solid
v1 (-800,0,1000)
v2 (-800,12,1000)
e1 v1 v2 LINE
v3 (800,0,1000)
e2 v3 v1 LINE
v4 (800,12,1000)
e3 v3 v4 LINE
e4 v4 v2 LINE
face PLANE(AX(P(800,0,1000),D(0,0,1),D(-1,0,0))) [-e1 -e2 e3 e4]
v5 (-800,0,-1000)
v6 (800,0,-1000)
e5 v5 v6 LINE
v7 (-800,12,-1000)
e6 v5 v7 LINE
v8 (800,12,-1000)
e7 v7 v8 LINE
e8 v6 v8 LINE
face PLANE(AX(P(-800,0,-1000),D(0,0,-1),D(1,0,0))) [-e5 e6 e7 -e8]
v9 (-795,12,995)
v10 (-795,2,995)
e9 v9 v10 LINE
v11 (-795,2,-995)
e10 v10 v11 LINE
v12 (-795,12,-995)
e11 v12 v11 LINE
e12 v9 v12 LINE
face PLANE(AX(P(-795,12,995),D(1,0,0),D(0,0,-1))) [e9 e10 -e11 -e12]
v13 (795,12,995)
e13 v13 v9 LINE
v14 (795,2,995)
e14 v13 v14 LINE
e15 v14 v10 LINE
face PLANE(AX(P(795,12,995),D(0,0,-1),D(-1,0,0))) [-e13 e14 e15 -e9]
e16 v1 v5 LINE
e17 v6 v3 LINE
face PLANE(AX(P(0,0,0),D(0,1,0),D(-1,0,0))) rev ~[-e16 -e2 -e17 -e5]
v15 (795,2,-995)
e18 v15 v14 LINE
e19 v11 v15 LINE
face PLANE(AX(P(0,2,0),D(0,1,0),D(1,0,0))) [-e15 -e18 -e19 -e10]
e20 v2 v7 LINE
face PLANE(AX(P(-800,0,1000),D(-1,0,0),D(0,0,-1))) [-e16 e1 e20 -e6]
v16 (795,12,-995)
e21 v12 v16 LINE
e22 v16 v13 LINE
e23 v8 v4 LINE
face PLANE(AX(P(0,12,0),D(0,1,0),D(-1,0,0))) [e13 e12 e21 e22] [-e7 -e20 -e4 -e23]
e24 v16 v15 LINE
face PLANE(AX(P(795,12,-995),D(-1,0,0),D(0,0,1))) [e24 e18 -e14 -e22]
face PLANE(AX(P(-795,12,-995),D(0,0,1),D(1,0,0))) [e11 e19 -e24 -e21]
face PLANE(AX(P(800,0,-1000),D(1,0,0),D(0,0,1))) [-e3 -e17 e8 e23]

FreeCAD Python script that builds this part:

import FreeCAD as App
import Part
import Sketcher
Q = App.Units.Quantity

doc = App.newDocument("Part")
body = doc.addObject("PartDesign::Body", "Body")

sketch1 = doc.addObject("Sketcher::SketchObject", "Sketch")
body.addObject(sketch1)
sketch1.AttachmentSupport = (doc.XZ_Plane, [""])
sketch1.MapMode = "FlatFace"
sketch1.addGeometry([
    Part.LineSegment(App.Vector(-800, 1000, 0), App.Vector(800, 1000, 0)),
    Part.LineSegment(App.Vector(800, 1000, 0), App.Vector(800, -1000, 0)),
    Part.LineSegment(App.Vector(800, -1000, 0), App.Vector(-800, -1000, 0)),
    Part.LineSegment(App.Vector(-800, -1000, 0), App.Vector(-800, 1000, 0)),
], False)
sketch1.addConstraint([
    Sketcher.Constraint("Coincident", 0, 2, 1, 1),
    Sketcher.Constraint("Coincident", 1, 2, 2, 1),
    Sketcher.Constraint("Coincident", 2, 2, 3, 1),
    Sketcher.Constraint("Coincident", 3, 2, 0, 1),
    Sketcher.Constraint("Horizontal", 0),
    Sketcher.Constraint("Vertical", 1),
    Sketcher.Constraint("Horizontal", 2),
    Sketcher.Constraint("Vertical", 3),
    Sketcher.Constraint("Symmetric", 0, 2, 2, 2, -1, 1),
    Sketcher.Constraint("DistanceX", 0, 1, 0, 2, Q("1600 mm")),
    Sketcher.Constraint("DistanceY", 1, 2, 1, 1, Q("2000 mm")),
])
pad1 = doc.addObject("PartDesign::Pad", "Pad")
body.addObject(pad1)
pad1.Profile = sketch1
pad1.Length = 12
pad1.Reversed = True

sketch2 = doc.addObject("Sketcher::SketchObject", "Sketch001")
body.addObject(sketch2)
sketch2.AttachmentSupport = (doc.XZ_Plane, [""])
sketch2.MapMode = "FlatFace"
sketch2.AttachmentOffset = App.Placement(App.Vector(0, 0, -12), App.Rotation())
sketch2.addGeometry([
    Part.LineSegment(App.Vector(-795, -995, 0), App.Vector(-795, 995, 0)),
    Part.LineSegment(App.Vector(-795, 995, 0), App.Vector(795, 995, 0)),
    Part.LineSegment(App.Vector(795, 995, 0), App.Vector(795, -995, 0)),
    Part.LineSegment(App.Vector(795, -995, 0), App.Vector(-795, -995, 0)),
], False)
sketch2.addConstraint([
    Sketcher.Constraint("Coincident", 0, 2, 1, 1),
    Sketcher.Constraint("Coincident", 1, 2, 2, 1),
    Sketcher.Constraint("Coincident", 2, 2, 3, 1),
    Sketcher.Constraint("Coincident", 3, 2, 0, 1),
    Sketcher.Constraint("Vertical", 0),
    Sketcher.Constraint("Horizontal", 1),
    Sketcher.Constraint("Vertical", 2),
    Sketcher.Constraint("Horizontal", 3),
    Sketcher.Constraint("Symmetric", 0, 2, 2, 2, -1, 1),
    Sketcher.Constraint("DistanceX", 1, 1, 1, 2, Q("1590 mm")),
    Sketcher.Constraint("DistanceY", 0, 1, 0, 2, Q("1990 mm")),
])
pocket1 = doc.addObject("PartDesign::Pocket", "Pocket")
body.addObject(pocket1)
pocket1.Profile = sketch2
pocket1.Length = 10
pocket1.Reversed = True

doc.recompute()
